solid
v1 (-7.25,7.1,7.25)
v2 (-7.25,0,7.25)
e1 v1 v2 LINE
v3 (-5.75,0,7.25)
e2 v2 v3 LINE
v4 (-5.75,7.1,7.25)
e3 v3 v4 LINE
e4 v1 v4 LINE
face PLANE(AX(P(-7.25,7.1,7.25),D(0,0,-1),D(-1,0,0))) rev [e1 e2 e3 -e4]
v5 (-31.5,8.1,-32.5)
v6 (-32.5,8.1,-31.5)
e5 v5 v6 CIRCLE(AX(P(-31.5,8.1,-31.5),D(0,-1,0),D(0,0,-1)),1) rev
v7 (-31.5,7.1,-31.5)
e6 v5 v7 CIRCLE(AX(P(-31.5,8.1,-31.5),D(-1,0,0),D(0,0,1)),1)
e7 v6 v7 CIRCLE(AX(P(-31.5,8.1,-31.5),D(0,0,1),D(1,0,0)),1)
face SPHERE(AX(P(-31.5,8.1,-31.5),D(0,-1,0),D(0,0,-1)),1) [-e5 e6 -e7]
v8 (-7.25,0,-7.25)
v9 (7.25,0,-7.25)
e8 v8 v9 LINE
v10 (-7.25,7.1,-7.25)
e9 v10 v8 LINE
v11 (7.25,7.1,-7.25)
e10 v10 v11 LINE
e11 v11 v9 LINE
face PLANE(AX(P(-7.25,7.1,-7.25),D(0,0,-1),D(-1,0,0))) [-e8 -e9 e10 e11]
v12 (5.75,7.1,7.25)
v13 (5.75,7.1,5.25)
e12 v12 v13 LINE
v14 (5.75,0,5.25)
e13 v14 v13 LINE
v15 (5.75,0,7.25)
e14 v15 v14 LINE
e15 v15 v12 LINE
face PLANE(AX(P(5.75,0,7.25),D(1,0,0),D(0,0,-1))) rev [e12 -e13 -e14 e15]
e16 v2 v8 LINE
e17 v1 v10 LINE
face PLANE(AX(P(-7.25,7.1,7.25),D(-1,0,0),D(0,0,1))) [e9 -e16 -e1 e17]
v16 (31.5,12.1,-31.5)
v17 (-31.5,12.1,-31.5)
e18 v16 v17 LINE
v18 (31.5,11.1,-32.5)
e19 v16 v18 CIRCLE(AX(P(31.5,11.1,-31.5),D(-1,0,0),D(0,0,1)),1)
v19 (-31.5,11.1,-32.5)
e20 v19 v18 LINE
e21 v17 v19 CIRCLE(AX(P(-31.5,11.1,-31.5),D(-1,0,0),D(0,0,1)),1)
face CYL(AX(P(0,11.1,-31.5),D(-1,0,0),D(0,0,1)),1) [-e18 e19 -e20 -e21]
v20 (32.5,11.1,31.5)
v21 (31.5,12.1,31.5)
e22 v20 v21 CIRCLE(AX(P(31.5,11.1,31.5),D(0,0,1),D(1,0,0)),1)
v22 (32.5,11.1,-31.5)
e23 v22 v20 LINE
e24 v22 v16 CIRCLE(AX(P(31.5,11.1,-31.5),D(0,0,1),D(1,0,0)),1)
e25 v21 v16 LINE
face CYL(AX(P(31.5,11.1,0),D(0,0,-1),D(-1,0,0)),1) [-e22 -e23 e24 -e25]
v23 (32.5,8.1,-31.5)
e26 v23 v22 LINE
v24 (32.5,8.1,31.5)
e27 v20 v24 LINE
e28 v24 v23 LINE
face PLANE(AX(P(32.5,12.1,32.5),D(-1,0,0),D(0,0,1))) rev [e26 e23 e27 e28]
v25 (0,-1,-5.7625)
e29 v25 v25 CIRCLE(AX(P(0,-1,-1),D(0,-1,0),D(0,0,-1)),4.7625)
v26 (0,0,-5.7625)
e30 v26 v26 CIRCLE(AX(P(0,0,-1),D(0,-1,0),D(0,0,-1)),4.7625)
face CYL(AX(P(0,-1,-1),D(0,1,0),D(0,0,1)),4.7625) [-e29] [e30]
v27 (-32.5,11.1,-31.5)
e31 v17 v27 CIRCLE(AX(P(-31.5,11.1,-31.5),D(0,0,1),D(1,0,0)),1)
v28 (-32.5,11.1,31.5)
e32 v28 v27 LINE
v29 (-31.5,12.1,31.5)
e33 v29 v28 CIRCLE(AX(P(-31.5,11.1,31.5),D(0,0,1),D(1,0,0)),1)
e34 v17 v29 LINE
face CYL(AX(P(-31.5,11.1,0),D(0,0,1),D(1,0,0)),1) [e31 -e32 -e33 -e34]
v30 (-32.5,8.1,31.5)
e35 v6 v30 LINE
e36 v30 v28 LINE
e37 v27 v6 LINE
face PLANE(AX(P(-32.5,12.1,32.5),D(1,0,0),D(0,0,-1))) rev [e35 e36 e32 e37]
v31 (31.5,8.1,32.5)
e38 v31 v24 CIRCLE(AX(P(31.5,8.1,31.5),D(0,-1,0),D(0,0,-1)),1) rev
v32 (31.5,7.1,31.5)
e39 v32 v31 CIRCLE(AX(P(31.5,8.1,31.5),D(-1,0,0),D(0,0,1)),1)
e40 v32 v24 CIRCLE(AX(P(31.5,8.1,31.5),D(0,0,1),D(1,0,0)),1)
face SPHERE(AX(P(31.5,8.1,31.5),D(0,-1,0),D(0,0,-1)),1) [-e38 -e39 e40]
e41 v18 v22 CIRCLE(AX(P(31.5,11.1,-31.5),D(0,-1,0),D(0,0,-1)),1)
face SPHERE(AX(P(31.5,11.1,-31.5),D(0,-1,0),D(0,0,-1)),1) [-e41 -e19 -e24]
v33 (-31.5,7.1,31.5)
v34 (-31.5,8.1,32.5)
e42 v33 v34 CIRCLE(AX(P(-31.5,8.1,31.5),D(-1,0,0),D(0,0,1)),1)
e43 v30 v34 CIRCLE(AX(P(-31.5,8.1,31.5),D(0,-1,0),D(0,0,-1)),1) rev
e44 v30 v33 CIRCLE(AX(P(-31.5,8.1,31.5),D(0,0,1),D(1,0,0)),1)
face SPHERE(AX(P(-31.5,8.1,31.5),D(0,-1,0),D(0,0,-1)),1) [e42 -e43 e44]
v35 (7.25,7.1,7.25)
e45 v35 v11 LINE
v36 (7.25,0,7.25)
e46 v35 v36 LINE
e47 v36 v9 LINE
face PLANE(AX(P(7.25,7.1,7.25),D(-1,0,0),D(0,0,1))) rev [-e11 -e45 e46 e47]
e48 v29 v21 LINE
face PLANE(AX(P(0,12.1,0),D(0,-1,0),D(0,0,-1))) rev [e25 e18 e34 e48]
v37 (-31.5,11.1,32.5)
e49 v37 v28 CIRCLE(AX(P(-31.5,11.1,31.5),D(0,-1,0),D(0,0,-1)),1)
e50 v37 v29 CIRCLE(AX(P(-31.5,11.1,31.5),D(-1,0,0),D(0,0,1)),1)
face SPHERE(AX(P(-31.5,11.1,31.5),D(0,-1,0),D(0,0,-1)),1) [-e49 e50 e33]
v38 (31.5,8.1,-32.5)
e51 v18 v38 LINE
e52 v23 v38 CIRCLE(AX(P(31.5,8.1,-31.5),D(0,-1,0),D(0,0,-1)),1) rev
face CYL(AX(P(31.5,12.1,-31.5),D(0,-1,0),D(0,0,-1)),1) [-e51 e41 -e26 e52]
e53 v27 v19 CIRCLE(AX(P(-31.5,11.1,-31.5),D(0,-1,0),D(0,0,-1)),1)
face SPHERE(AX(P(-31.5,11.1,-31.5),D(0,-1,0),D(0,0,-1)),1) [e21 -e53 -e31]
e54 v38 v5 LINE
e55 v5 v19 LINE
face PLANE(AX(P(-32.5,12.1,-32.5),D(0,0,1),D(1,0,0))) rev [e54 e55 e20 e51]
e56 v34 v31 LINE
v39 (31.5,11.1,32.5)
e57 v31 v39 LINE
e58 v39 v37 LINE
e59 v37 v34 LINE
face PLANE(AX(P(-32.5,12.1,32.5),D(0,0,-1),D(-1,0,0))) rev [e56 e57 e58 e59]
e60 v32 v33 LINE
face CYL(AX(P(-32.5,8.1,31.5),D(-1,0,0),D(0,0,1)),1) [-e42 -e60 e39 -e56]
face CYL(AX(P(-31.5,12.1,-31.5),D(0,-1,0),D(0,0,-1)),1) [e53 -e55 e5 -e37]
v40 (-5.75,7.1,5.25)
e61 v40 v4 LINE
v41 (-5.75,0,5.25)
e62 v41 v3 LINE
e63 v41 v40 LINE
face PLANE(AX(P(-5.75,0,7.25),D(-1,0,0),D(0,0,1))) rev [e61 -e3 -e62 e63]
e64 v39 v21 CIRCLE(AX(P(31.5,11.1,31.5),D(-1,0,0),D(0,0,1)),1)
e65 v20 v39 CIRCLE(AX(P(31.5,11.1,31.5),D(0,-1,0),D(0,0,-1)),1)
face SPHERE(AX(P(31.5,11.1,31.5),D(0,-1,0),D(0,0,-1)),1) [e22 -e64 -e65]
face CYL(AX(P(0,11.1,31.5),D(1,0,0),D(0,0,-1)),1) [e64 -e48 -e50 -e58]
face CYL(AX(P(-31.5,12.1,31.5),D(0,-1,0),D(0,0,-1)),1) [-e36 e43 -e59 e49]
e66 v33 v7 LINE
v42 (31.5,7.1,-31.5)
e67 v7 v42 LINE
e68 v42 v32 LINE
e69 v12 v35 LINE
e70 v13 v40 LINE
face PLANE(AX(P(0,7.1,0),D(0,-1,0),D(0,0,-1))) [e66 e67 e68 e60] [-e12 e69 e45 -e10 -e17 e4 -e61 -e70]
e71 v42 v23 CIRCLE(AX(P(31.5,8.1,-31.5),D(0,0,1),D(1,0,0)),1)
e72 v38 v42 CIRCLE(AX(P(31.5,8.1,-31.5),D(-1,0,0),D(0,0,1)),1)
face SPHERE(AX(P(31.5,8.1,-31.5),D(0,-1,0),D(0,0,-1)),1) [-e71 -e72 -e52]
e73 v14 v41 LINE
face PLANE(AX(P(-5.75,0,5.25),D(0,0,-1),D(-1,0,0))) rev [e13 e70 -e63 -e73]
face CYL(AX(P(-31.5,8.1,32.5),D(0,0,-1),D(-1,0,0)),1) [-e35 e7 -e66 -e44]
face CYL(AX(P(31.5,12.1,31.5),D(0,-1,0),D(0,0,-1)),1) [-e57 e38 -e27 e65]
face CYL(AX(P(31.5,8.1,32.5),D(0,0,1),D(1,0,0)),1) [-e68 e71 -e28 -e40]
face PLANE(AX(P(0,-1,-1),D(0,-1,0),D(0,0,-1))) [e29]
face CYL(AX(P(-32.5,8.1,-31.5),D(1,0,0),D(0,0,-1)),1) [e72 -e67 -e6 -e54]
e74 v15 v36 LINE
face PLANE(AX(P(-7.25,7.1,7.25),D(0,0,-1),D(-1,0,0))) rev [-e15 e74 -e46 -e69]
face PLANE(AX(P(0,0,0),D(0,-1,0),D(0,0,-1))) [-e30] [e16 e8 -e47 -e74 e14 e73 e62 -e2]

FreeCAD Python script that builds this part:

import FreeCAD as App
import Part
import Sketcher

V = App.Vector
Q = App.Units.Quantity


def edges_at(feature, points):
    """Names of the edges that pass closest to the given points."""
    edges = feature.Shape.Edges
    near = lambda p: min(range(len(edges)), key=lambda i: edges[i].distToShape(Part.Vertex(*p))[0])
    return sorted({f"Edge{near(p) + 1}" for p in points})

doc = App.newDocument("Part")
body = doc.addObject("PartDesign::Body", "Body")

# Sketch on XZ plane
sketch1 = body.newObject("Sketcher::SketchObject", "Sketch")
sketch1.AttachmentSupport = (doc.getObject("XZ_Plane"), [""])
sketch1.MapMode = "FlatFace"
sketch1.addGeometry(Part.LineSegment(V(-7, -7, 0), V(-7, 7, 0)), False)
sketch1.addGeometry(Part.LineSegment(V(-7, 7, 0), V(7, 7, 0)), False)
sketch1.addGeometry(Part.LineSegment(V(7, 7, 0), V(7, -7, 0)), False)
sketch1.addGeometry(Part.LineSegment(V(7, -7, 0), V(-7, -7, 0)), False)
sketch1.addConstraint(Sketcher.Constraint("Coincident", 0, 2, 1, 1))
sketch1.addConstraint(Sketcher.Constraint("Coincident", 1, 2, 2, 1))
sketch1.addConstraint(Sketcher.Constraint("Coincident", 2, 2, 3, 1))
sketch1.addConstraint(Sketcher.Constraint("Coincident", 3, 2, 0, 1))
sketch1.addConstraint(Sketcher.Constraint("Vertical", 0))
sketch1.addConstraint(Sketcher.Constraint("Horizontal", 1))
sketch1.addConstraint(Sketcher.Constraint("Vertical", 2))
sketch1.addConstraint(Sketcher.Constraint("Horizontal", 3))
sketch1.addConstraint(Sketcher.Constraint("Symmetric", 0, 2, 2, 2, -1, 1))
sketch1.addConstraint(Sketcher.Constraint("Equal", 3, 0))
sketch1.addConstraint(Sketcher.Constraint("DistanceX", 1, 1, 1, 2, Q("14.5 mm")))
pad1 = body.newObject("PartDesign::Pad", "Pad")
pad1.Profile = sketch1
pad1.Length = 7.1
pad1.Reversed = True

# Sketch on XZ plane
sketch2 = body.newObject("Sketcher::SketchObject", "Sketch001")
sketch2.AttachmentSupport = (doc.getObject("XZ_Plane"), [""])
sketch2.MapMode = "FlatFace"
sketch2.AttachmentOffset = App.Placement(V(0, 0, -7.1), App.Rotation())
sketch2.addGeometry(Part.LineSegment(V(-5.8, 5.2, 0), V(-5.8, 7.2, 0)), False)
sketch2.addGeometry(Part.LineSegment(V(-5.8, 7.2, 0), V(5.8, 7.2, 0)), False)
sketch2.addGeometry(Part.LineSegment(V(5.8, 7.2, 0), V(5.8, 5.2, 0)), False)
sketch2.addGeometry(Part.LineSegment(V(5.8, 5.2, 0), V(-5.8, 5.2, 0)), False)
sketch2.addConstraint(Sketcher.Constraint("Coincident", 0, 2, 1, 1))
sketch2.addConstraint(Sketcher.Constraint("Coincident", 1, 2, 2, 1))
sketch2.addConstraint(Sketcher.Constraint("Coincident", 2, 2, 3, 1))
sketch2.addConstraint(Sketcher.Constraint("Coincident", 3, 2, 0, 1))
sketch2.addConstraint(Sketcher.Constraint("Vertical", 0))
sketch2.addConstraint(Sketcher.Constraint("Horizontal", 1))
sketch2.addConstraint(Sketcher.Constraint("Vertical", 2))
sketch2.addConstraint(Sketcher.Constraint("Horizontal", 3))
sketch2.addConstraint(Sketcher.Constraint("DistanceY", 0, 1, 0, 2, Q("2 mm")))
sketch2.addConstraint(Sketcher.Constraint("DistanceX", 1, 1, 1, 2, Q("11.5 mm")))
sketch2.addConstraint(Sketcher.Constraint("DistanceX", 0, 2, -1, 1, Q("5.75 mm")))
sketch2.addConstraint(Sketcher.Constraint("DistanceY", -1, 1, 0, 2, Q("7.25 mm")))
pocket1 = body.newObject("PartDesign::Pocket", "Pocket")
pocket1.Profile = sketch2
pocket1.Type = "ThroughAll"
pocket1.Reversed = True

# Sketch on XZ plane
sketch3 = body.newObject("Sketcher::SketchObject", "Sketch002")
sketch3.AttachmentSupport = (doc.getObject("XZ_Plane"), [""])
sketch3.MapMode = "FlatFace"
sketch3.addGeometry(Part.Circle(V(0, -1, 0), V(0, 0, 1), 4.8), False)
sketch3.addConstraint(Sketcher.Constraint("PointOnObject", 0, 3, -2))
sketch3.addConstraint(Sketcher.Constraint("Diameter", 0, Q("9.525 mm")))
sketch3.addConstraint(Sketcher.Constraint("DistanceY", 0, 3, -1, 1, Q("1 mm")))
pad2 = body.newObject("PartDesign::Pad", "Pad001")
pad2.Profile = sketch3
pad2.Length = 1

# Sketch on XZ plane
sketch4 = body.newObject("Sketcher::SketchObject", "Sketch003")
sketch4.AttachmentSupport = (doc.getObject("XZ_Plane"), [""])
sketch4.MapMode = "FlatFace"
sketch4.AttachmentOffset = App.Placement(V(0, 0, -7.1), App.Rotation())
sketch4.addGeometry(Part.LineSegment(V(-32, -32, 0), V(-32, 32, 0)), False)
sketch4.addGeometry(Part.LineSegment(V(-32, 32, 0), V(32, 32, 0)), False)
sketch4.addGeometry(Part.LineSegment(V(32, 32, 0), V(32, -32, 0)), False)
sketch4.addGeometry(Part.LineSegment(V(32, -32, 0), V(-32, -32, 0)), False)
sketch4.addConstraint(Sketcher.Constraint("Coincident", 0, 2, 1, 1))
sketch4.addConstraint(Sketcher.Constraint("Coincident", 1, 2, 2, 1))
sketch4.addConstraint(Sketcher.Constraint("Coincident", 2, 2, 3, 1))
sketch4.addConstraint(Sketcher.Constraint("Coincident", 3, 2, 0, 1))
sketch4.addConstraint(Sketcher.Constraint("Vertical", 0))
sketch4.addConstraint(Sketcher.Constraint("Horizontal", 1))
sketch4.addConstraint(Sketcher.Constraint("Vertical", 2))
sketch4.addConstraint(Sketcher.Constraint("Horizontal", 3))
sketch4.addConstraint(Sketcher.Constraint("Symmetric", 0, 2, 2, 2, -1, 1))
sketch4.addConstraint(Sketcher.Constraint("Equal", 3, 0))
sketch4.addConstraint(Sketcher.Constraint("DistanceX", 1, 1, 1, 2, Q("65 mm")))
pad3 = body.newObject("PartDesign::Pad", "Pad002")
pad3.Profile = sketch4
pad3.Length = 5
pad3.Reversed = True
doc.recompute()

fillet = body.newObject("PartDesign::Fillet", "Fillet")
fillet.Base = (pad3, edges_at(pad3, [
    (32.5, 9.6, 32.5),
    (32.5, 9.6, -32.5),
    (-32.5, 9.6, -32.5),
    (-32.5, 9.6, 32.5),
]))
fillet.Radius = 1
doc.recompute()

fillet2 = body.newObject("PartDesign::Fillet", "Fillet001")
fillet2.Base = (fillet, edges_at(fillet, [
    (0, 7.1, 32.5),
    (0, 12.1, 32.5),
    (32.5, 7.1, 0),
    (-32.5, 7.1, 0),
    (0, 7.1, -32.5),
    (32.207, 7.1, 32.207),
    (32.207, 7.1, -32.207),
    (-32.207, 7.1, -32.207),
    (-32.207, 7.1, 32.207),
    (-32.5, 12.1, 0),
    (32.5, 12.1, 0),
    (0, 12.1, -32.5),
    (32.207, 12.1, 32.207),
    (32.207, 12.1, -32.207),
    (-32.207, 12.1, -32.207),
    (-32.207, 12.1, 32.207),
]))
fillet2.Radius = 1

doc.recompute()
